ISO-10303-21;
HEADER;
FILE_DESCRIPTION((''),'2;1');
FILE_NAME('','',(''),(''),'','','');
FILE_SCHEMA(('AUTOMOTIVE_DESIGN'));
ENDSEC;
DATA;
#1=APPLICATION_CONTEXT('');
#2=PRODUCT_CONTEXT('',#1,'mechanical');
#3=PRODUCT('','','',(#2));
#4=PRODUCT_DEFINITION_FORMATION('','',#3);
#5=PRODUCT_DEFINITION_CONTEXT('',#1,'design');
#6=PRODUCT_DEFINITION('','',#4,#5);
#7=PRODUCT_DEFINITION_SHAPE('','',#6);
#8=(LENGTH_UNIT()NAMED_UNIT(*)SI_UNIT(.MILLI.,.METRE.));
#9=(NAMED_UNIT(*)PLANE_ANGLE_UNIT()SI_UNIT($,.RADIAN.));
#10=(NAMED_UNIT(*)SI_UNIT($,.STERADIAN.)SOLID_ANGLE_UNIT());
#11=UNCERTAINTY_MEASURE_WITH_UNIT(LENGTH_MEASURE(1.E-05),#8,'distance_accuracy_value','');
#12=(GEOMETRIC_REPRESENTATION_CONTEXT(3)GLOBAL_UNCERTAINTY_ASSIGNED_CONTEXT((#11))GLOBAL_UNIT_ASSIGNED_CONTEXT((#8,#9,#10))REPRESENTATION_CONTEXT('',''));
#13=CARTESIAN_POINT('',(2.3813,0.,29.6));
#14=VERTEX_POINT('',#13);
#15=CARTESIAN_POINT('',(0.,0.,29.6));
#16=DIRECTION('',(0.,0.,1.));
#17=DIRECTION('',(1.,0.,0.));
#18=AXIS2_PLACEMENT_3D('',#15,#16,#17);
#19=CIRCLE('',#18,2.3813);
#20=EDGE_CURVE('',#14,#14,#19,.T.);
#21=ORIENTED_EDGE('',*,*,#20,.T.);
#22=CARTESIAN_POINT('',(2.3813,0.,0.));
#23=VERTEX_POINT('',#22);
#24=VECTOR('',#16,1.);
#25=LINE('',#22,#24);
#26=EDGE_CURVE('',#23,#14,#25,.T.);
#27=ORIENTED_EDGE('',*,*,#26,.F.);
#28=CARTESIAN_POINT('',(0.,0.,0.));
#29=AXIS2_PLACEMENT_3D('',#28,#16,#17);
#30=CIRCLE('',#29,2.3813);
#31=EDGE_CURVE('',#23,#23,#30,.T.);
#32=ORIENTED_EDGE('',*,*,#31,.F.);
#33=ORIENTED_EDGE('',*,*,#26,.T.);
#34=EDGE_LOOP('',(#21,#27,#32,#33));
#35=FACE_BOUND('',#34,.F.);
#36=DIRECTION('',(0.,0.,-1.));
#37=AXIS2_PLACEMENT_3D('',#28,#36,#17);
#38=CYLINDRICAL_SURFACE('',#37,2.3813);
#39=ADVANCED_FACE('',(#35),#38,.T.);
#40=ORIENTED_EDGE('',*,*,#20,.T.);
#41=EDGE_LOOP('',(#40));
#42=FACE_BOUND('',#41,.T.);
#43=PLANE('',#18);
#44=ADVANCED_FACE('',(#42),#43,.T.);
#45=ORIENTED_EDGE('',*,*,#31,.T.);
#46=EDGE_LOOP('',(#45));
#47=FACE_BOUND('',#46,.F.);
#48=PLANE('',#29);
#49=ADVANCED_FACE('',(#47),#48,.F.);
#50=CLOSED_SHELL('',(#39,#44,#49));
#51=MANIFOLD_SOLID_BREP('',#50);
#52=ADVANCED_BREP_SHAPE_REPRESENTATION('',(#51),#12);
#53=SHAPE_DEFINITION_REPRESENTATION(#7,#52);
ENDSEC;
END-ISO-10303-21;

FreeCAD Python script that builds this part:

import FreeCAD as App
import Part
import Sketcher

V = App.Vector

doc = App.newDocument("Part")
body = doc.addObject("PartDesign::Body", "Body")

sketch1 = body.newObject("Sketcher::SketchObject", "Sketch")
sketch1.AttachmentSupport = (doc.getObject("XY_Plane"), [""])
sketch1.MapMode = "FlatFace"
sketch1.addGeometry(Part.Circle(V(0, 0, 0), V(0, 0, 1), 2.4), False)
sketch1.addConstraint([
    Sketcher.Constraint("Coincident", 0, 3, -1, 1),
    Sketcher.Constraint("Diameter", 0, 4.7626),
])
pad1 = body.newObject("PartDesign::Pad", "Pad")
pad1.Profile = sketch1
pad1.Length = 29.6

doc.recompute()
